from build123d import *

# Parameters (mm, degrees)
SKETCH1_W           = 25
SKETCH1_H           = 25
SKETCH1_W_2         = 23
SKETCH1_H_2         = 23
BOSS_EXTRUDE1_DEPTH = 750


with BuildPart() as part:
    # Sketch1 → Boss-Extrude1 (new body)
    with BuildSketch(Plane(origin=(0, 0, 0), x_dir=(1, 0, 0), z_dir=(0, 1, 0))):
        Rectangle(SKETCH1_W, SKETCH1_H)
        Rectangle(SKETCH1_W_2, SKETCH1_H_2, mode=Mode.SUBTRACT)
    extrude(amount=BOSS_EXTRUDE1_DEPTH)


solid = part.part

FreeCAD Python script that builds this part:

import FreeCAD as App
import Part
import Sketcher

V = App.Vector
Q = App.Units.Quantity


def add_polygon(sketch, points):
    """Adds a closed chain of lines whose ends are joined by coincident constraints."""
    first, n = sketch.GeometryCount, len(points)
    for a, b in zip(points, points[1:] + points[:1]):
        sketch.addGeometry(Part.LineSegment(App.Vector(*a, 0), App.Vector(*b, 0)), False)
    for i in range(n):
        sketch.addConstraint(Sketcher.Constraint("Coincident", first + i, 2, first + (i + 1) % n, 1))

doc = App.newDocument("Part")
body = doc.addObject("PartDesign::Body", "Body")

# Sketch on XZ plane
sketch1 = body.newObject("Sketcher::SketchObject", "Sketch")
sketch1.AttachmentSupport = (doc.getObject("XZ_Plane"), [""])
sketch1.MapMode = "FlatFace"
add_polygon(sketch1, [(-12, -12), (-12, 12), (12, 12), (12, -12)])  # lines 0-3
add_polygon(sketch1, [(12, 12), (-12, 12), (-12, -12), (12, -12)])  # lines 4-7
sketch1.addConstraint([
    Sketcher.Constraint("Vertical", 0),
    Sketcher.Constraint("Horizontal", 1),
    Sketcher.Constraint("Vertical", 2),
    Sketcher.Constraint("Horizontal", 3),
    Sketcher.Constraint("Horizontal", 4),
    Sketcher.Constraint("Vertical", 5),
    Sketcher.Constraint("Horizontal", 6),
    Sketcher.Constraint("Vertical", 7),
    Sketcher.Constraint("Symmetric", 0, 2, 2, 2, -1, 1),
    Sketcher.Constraint("Symmetric", 4, 2, 6, 2, -1, 1),
    Sketcher.Constraint("Equal", 3, 0),
    Sketcher.Constraint("Equal", 6, 5),
    Sketcher.Constraint("DistanceX", 1, 1, 1, 2, Q("25 mm")),
    Sketcher.Constraint("DistanceX", 4, 2, 4, 1, Q("23 mm")),
])
pad1 = body.newObject("PartDesign::Pad", "Pad")
pad1.Profile = sketch1
pad1.Length = 750
pad1.Reversed = True

doc.recompute()
